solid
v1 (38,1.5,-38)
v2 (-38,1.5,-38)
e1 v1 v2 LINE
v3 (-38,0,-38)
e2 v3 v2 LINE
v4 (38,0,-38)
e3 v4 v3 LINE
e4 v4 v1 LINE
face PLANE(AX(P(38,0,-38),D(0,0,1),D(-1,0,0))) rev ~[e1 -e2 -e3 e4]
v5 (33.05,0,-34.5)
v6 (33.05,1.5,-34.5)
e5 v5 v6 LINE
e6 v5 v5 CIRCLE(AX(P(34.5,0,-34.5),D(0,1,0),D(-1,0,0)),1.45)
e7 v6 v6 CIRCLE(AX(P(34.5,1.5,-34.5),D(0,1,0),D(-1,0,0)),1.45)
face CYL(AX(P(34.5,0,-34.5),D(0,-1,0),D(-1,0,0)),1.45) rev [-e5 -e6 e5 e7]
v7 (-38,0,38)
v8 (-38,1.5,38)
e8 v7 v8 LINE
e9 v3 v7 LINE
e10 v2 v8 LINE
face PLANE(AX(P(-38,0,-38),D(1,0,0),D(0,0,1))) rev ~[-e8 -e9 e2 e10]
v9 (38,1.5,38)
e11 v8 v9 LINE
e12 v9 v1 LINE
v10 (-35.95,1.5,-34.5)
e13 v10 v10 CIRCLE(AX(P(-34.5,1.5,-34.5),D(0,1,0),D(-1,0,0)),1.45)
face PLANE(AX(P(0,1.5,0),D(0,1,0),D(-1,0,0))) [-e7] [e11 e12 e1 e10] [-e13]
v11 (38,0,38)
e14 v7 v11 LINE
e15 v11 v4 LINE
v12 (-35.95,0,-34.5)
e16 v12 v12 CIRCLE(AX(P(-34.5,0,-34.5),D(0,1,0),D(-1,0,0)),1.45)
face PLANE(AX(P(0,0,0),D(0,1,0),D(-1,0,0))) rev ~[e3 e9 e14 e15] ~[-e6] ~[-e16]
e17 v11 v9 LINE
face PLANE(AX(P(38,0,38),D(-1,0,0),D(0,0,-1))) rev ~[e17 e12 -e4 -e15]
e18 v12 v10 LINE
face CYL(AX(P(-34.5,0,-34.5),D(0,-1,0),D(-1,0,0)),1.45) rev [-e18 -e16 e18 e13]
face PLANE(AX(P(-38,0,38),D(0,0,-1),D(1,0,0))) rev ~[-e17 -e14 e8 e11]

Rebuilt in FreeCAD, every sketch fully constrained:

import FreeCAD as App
import Part
import Sketcher

V = App.Vector


def add_polygon(sketch, points):
    """Adds a closed chain of lines whose ends are joined by coincident constraints."""
    first, n = sketch.GeometryCount, len(points)
    for a, b in zip(points, points[1:] + points[:1]):
        sketch.addGeometry(Part.LineSegment(App.Vector(*a, 0), App.Vector(*b, 0)), False)
    for i in range(n):
        sketch.addConstraint(Sketcher.Constraint("Coincident", first + i, 2, first + (i + 1) % n, 1))

doc = App.newDocument("Part")
body = doc.addObject("PartDesign::Body", "Body")

# Sketch on XZ plane
sketch1 = body.newObject("Sketcher::SketchObject", "Sketch")
sketch1.AttachmentSupport = (doc.getObject("XZ_Plane"), [""])
sketch1.MapMode = "FlatFace"
add_polygon(sketch1, [(-38, -38), (-38, 38), (38, 38), (38, -38)])  # lines 0-3
sketch1.addConstraint(Sketcher.Constraint("Vertical", 0))
sketch1.addConstraint(Sketcher.Constraint("Horizontal", 1))
sketch1.addConstraint(Sketcher.Constraint("Vertical", 2))
sketch1.addConstraint(Sketcher.Constraint("Horizontal", 3))
sketch1.addConstraint(Sketcher.Constraint("Symmetric", 0, 2, 2, 2, -1, 1))
sketch1.addConstraint(Sketcher.Constraint("Equal", 3, 0))
sketch1.addConstraint(Sketcher.Constraint("DistanceX", 1, 1, 1, 2, 76.0))
pad1 = body.newObject("PartDesign::Pad", "Pad")
pad1.Profile = sketch1
pad1.Length = 1.5
pad1.Reversed = True

# Sketch on XZ plane
sketch2 = body.newObject("Sketcher::SketchObject", "Sketch001")
sketch2.AttachmentSupport = (doc.getObject("XZ_Plane"), [""])
sketch2.MapMode = "FlatFace"
sketch2.addGeometry(Part.Circle(V(34.5, -34.5, 0), V(0, 0, 1), 1.45), False)
sketch2.addGeometry(Part.Circle(V(-34.5, -34.5, 0), V(0, 0, 1), 1.45), False)
sketch2.addConstraint(Sketcher.Constraint("Equal", 0, 1))
sketch2.addConstraint(Sketcher.Constraint("Symmetric", 0, 3, 1, 3, -2))
sketch2.addConstraint(Sketcher.Constraint("Diameter", 0, 2.9))
sketch2.addConstraint(Sketcher.Constraint("DistanceX", 1, 3, 0, 3, 69.0))
sketch2.addConstraint(Sketcher.Constraint("DistanceY", 0, 3, -1, 1, 34.5))
pocket1 = body.newObject("PartDesign::Pocket", "Pocket")
pocket1.Profile = sketch2
pocket1.Length = 1.5

doc.recompute()
